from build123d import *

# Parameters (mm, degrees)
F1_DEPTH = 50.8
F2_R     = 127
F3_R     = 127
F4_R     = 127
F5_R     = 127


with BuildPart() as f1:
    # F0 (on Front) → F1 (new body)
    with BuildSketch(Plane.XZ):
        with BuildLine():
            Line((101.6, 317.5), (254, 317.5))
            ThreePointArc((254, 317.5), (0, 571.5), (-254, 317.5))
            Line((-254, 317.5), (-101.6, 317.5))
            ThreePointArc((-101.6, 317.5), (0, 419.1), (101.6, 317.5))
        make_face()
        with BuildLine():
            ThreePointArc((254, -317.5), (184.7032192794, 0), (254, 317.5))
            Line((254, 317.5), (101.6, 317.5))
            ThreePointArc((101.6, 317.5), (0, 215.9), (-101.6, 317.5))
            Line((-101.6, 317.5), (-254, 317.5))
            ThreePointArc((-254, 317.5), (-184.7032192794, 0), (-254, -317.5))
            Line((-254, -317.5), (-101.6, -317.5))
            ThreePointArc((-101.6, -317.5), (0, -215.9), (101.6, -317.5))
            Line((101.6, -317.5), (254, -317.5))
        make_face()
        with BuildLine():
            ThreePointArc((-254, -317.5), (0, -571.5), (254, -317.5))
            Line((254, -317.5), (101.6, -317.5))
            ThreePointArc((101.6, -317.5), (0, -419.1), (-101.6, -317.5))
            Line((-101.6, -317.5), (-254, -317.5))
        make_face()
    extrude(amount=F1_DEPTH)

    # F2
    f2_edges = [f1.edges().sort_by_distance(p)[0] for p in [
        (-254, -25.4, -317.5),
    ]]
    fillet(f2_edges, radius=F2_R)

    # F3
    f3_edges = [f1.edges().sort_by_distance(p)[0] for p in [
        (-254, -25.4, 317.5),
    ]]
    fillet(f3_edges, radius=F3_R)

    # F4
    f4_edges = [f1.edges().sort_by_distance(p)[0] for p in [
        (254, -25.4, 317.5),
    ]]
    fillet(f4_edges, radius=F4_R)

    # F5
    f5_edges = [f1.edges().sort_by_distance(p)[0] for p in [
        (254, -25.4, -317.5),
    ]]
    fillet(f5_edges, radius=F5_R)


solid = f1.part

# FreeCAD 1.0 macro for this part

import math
import FreeCAD as App
import Part
import Sketcher

V = App.Vector
Q = App.Units.Quantity


def edges_at(feature, points):
    """Names of the edges that pass closest to the given points."""
    edges = feature.Shape.Edges
    near = lambda p: min(range(len(edges)), key=lambda i: edges[i].distToShape(Part.Vertex(*p))[0])
    return sorted({f"Edge{near(p) + 1}" for p in points})

doc = App.newDocument("Part")
body = doc.addObject("PartDesign::Body", "Body")

sketch1 = body.newObject("Sketcher::SketchObject", "Sketch")
sketch1.AttachmentSupport = (doc.getObject("XZ_Plane"), [""])
sketch1.MapMode = "FlatFace"
sketch1.addGeometry([
    Part.ArcOfCircle(Part.Circle(V(0, 317.5, 0), V(0, 0, 1), 254), math.radians(0), math.radians(180)),
    Part.ArcOfCircle(Part.Circle(V(-946.703219, 0, 0), V(0, 0, 1), 762), math.radians(-24.624318), math.radians(24.624318)),
    Part.ArcOfCircle(Part.Circle(V(0, -317.5, 0), V(0, 0, 1), 254), math.radians(180), math.radians(360)),
    Part.ArcOfCircle(Part.Circle(V(946.703219, 0, 0), V(0, 0, 1), 762), math.radians(155.375682), math.radians(204.624318)),
    Part.Circle(V(0, -317.5, 0), V(0, 0, 1), 101.6),
    Part.Circle(V(0, 317.5, 0), V(0, 0, 1), 101.6),
], False)
sketch1.addConstraint([
    Sketcher.Constraint("Coincident", 0, 2, 1, 2),
    Sketcher.Constraint("Coincident", 1, 1, 2, 1),
    Sketcher.Constraint("Coincident", 2, 2, 3, 2),
    Sketcher.Constraint("Coincident", 3, 1, 0, 1),
    Sketcher.Constraint("Coincident", 4, 3, 2, 3),
    Sketcher.Constraint("Coincident", 5, 3, 0, 3),
    Sketcher.Constraint("Equal", 0, 2),
    Sketcher.Constraint("Equal", 1, 3),
    Sketcher.Constraint("Equal", 4, 5),
    Sketcher.Constraint("Symmetric", 0, 3, 2, 3, -1, 1),
    Sketcher.Constraint("Symmetric", 1, 3, 3, 3, -1, 1),
    Sketcher.Constraint("PointOnObject", 0, 3, -2),
    Sketcher.Constraint("PointOnObject", 1, 3, -1),
    Sketcher.Constraint("Horizontal", 5, 3, 0, 2),
    Sketcher.Constraint("Diameter", 4, Q("8 in")),
    Sketcher.Constraint("Radius", 0, Q("10 in")),
    Sketcher.Constraint("Radius", 1, Q("30 in")),
    Sketcher.Constraint("DistanceY", 2, 3, 0, 3, Q("25 in")),
])
pad1 = body.newObject("PartDesign::Pad", "Pad")
pad1.Profile = sketch1
pad1.Length = Q("2 in")
doc.recompute()

fillet = body.newObject("PartDesign::Fillet", "Fillet")
fillet.Base = (pad1, edges_at(pad1, [(-254, -25.4, -317.5)]))
fillet.Radius = Q("5 in")
doc.recompute()

fillet2 = body.newObject("PartDesign::Fillet", "Fillet001")
fillet2.Base = (fillet, edges_at(fillet, [(-254, -25.4, 317.5)]))
fillet2.Radius = Q("5 in")
doc.recompute()

fillet3 = body.newObject("PartDesign::Fillet", "Fillet002")
fillet3.Base = (fillet2, edges_at(fillet2, [(254, -25.4, 317.5)]))
fillet3.Radius = Q("5 in")
doc.recompute()

fillet4 = body.newObject("PartDesign::Fillet", "Fillet003")
fillet4.Base = (fillet3, edges_at(fillet3, [(254, -25.4, -317.5)]))
fillet4.Radius = Q("5 in")

doc.recompute()
